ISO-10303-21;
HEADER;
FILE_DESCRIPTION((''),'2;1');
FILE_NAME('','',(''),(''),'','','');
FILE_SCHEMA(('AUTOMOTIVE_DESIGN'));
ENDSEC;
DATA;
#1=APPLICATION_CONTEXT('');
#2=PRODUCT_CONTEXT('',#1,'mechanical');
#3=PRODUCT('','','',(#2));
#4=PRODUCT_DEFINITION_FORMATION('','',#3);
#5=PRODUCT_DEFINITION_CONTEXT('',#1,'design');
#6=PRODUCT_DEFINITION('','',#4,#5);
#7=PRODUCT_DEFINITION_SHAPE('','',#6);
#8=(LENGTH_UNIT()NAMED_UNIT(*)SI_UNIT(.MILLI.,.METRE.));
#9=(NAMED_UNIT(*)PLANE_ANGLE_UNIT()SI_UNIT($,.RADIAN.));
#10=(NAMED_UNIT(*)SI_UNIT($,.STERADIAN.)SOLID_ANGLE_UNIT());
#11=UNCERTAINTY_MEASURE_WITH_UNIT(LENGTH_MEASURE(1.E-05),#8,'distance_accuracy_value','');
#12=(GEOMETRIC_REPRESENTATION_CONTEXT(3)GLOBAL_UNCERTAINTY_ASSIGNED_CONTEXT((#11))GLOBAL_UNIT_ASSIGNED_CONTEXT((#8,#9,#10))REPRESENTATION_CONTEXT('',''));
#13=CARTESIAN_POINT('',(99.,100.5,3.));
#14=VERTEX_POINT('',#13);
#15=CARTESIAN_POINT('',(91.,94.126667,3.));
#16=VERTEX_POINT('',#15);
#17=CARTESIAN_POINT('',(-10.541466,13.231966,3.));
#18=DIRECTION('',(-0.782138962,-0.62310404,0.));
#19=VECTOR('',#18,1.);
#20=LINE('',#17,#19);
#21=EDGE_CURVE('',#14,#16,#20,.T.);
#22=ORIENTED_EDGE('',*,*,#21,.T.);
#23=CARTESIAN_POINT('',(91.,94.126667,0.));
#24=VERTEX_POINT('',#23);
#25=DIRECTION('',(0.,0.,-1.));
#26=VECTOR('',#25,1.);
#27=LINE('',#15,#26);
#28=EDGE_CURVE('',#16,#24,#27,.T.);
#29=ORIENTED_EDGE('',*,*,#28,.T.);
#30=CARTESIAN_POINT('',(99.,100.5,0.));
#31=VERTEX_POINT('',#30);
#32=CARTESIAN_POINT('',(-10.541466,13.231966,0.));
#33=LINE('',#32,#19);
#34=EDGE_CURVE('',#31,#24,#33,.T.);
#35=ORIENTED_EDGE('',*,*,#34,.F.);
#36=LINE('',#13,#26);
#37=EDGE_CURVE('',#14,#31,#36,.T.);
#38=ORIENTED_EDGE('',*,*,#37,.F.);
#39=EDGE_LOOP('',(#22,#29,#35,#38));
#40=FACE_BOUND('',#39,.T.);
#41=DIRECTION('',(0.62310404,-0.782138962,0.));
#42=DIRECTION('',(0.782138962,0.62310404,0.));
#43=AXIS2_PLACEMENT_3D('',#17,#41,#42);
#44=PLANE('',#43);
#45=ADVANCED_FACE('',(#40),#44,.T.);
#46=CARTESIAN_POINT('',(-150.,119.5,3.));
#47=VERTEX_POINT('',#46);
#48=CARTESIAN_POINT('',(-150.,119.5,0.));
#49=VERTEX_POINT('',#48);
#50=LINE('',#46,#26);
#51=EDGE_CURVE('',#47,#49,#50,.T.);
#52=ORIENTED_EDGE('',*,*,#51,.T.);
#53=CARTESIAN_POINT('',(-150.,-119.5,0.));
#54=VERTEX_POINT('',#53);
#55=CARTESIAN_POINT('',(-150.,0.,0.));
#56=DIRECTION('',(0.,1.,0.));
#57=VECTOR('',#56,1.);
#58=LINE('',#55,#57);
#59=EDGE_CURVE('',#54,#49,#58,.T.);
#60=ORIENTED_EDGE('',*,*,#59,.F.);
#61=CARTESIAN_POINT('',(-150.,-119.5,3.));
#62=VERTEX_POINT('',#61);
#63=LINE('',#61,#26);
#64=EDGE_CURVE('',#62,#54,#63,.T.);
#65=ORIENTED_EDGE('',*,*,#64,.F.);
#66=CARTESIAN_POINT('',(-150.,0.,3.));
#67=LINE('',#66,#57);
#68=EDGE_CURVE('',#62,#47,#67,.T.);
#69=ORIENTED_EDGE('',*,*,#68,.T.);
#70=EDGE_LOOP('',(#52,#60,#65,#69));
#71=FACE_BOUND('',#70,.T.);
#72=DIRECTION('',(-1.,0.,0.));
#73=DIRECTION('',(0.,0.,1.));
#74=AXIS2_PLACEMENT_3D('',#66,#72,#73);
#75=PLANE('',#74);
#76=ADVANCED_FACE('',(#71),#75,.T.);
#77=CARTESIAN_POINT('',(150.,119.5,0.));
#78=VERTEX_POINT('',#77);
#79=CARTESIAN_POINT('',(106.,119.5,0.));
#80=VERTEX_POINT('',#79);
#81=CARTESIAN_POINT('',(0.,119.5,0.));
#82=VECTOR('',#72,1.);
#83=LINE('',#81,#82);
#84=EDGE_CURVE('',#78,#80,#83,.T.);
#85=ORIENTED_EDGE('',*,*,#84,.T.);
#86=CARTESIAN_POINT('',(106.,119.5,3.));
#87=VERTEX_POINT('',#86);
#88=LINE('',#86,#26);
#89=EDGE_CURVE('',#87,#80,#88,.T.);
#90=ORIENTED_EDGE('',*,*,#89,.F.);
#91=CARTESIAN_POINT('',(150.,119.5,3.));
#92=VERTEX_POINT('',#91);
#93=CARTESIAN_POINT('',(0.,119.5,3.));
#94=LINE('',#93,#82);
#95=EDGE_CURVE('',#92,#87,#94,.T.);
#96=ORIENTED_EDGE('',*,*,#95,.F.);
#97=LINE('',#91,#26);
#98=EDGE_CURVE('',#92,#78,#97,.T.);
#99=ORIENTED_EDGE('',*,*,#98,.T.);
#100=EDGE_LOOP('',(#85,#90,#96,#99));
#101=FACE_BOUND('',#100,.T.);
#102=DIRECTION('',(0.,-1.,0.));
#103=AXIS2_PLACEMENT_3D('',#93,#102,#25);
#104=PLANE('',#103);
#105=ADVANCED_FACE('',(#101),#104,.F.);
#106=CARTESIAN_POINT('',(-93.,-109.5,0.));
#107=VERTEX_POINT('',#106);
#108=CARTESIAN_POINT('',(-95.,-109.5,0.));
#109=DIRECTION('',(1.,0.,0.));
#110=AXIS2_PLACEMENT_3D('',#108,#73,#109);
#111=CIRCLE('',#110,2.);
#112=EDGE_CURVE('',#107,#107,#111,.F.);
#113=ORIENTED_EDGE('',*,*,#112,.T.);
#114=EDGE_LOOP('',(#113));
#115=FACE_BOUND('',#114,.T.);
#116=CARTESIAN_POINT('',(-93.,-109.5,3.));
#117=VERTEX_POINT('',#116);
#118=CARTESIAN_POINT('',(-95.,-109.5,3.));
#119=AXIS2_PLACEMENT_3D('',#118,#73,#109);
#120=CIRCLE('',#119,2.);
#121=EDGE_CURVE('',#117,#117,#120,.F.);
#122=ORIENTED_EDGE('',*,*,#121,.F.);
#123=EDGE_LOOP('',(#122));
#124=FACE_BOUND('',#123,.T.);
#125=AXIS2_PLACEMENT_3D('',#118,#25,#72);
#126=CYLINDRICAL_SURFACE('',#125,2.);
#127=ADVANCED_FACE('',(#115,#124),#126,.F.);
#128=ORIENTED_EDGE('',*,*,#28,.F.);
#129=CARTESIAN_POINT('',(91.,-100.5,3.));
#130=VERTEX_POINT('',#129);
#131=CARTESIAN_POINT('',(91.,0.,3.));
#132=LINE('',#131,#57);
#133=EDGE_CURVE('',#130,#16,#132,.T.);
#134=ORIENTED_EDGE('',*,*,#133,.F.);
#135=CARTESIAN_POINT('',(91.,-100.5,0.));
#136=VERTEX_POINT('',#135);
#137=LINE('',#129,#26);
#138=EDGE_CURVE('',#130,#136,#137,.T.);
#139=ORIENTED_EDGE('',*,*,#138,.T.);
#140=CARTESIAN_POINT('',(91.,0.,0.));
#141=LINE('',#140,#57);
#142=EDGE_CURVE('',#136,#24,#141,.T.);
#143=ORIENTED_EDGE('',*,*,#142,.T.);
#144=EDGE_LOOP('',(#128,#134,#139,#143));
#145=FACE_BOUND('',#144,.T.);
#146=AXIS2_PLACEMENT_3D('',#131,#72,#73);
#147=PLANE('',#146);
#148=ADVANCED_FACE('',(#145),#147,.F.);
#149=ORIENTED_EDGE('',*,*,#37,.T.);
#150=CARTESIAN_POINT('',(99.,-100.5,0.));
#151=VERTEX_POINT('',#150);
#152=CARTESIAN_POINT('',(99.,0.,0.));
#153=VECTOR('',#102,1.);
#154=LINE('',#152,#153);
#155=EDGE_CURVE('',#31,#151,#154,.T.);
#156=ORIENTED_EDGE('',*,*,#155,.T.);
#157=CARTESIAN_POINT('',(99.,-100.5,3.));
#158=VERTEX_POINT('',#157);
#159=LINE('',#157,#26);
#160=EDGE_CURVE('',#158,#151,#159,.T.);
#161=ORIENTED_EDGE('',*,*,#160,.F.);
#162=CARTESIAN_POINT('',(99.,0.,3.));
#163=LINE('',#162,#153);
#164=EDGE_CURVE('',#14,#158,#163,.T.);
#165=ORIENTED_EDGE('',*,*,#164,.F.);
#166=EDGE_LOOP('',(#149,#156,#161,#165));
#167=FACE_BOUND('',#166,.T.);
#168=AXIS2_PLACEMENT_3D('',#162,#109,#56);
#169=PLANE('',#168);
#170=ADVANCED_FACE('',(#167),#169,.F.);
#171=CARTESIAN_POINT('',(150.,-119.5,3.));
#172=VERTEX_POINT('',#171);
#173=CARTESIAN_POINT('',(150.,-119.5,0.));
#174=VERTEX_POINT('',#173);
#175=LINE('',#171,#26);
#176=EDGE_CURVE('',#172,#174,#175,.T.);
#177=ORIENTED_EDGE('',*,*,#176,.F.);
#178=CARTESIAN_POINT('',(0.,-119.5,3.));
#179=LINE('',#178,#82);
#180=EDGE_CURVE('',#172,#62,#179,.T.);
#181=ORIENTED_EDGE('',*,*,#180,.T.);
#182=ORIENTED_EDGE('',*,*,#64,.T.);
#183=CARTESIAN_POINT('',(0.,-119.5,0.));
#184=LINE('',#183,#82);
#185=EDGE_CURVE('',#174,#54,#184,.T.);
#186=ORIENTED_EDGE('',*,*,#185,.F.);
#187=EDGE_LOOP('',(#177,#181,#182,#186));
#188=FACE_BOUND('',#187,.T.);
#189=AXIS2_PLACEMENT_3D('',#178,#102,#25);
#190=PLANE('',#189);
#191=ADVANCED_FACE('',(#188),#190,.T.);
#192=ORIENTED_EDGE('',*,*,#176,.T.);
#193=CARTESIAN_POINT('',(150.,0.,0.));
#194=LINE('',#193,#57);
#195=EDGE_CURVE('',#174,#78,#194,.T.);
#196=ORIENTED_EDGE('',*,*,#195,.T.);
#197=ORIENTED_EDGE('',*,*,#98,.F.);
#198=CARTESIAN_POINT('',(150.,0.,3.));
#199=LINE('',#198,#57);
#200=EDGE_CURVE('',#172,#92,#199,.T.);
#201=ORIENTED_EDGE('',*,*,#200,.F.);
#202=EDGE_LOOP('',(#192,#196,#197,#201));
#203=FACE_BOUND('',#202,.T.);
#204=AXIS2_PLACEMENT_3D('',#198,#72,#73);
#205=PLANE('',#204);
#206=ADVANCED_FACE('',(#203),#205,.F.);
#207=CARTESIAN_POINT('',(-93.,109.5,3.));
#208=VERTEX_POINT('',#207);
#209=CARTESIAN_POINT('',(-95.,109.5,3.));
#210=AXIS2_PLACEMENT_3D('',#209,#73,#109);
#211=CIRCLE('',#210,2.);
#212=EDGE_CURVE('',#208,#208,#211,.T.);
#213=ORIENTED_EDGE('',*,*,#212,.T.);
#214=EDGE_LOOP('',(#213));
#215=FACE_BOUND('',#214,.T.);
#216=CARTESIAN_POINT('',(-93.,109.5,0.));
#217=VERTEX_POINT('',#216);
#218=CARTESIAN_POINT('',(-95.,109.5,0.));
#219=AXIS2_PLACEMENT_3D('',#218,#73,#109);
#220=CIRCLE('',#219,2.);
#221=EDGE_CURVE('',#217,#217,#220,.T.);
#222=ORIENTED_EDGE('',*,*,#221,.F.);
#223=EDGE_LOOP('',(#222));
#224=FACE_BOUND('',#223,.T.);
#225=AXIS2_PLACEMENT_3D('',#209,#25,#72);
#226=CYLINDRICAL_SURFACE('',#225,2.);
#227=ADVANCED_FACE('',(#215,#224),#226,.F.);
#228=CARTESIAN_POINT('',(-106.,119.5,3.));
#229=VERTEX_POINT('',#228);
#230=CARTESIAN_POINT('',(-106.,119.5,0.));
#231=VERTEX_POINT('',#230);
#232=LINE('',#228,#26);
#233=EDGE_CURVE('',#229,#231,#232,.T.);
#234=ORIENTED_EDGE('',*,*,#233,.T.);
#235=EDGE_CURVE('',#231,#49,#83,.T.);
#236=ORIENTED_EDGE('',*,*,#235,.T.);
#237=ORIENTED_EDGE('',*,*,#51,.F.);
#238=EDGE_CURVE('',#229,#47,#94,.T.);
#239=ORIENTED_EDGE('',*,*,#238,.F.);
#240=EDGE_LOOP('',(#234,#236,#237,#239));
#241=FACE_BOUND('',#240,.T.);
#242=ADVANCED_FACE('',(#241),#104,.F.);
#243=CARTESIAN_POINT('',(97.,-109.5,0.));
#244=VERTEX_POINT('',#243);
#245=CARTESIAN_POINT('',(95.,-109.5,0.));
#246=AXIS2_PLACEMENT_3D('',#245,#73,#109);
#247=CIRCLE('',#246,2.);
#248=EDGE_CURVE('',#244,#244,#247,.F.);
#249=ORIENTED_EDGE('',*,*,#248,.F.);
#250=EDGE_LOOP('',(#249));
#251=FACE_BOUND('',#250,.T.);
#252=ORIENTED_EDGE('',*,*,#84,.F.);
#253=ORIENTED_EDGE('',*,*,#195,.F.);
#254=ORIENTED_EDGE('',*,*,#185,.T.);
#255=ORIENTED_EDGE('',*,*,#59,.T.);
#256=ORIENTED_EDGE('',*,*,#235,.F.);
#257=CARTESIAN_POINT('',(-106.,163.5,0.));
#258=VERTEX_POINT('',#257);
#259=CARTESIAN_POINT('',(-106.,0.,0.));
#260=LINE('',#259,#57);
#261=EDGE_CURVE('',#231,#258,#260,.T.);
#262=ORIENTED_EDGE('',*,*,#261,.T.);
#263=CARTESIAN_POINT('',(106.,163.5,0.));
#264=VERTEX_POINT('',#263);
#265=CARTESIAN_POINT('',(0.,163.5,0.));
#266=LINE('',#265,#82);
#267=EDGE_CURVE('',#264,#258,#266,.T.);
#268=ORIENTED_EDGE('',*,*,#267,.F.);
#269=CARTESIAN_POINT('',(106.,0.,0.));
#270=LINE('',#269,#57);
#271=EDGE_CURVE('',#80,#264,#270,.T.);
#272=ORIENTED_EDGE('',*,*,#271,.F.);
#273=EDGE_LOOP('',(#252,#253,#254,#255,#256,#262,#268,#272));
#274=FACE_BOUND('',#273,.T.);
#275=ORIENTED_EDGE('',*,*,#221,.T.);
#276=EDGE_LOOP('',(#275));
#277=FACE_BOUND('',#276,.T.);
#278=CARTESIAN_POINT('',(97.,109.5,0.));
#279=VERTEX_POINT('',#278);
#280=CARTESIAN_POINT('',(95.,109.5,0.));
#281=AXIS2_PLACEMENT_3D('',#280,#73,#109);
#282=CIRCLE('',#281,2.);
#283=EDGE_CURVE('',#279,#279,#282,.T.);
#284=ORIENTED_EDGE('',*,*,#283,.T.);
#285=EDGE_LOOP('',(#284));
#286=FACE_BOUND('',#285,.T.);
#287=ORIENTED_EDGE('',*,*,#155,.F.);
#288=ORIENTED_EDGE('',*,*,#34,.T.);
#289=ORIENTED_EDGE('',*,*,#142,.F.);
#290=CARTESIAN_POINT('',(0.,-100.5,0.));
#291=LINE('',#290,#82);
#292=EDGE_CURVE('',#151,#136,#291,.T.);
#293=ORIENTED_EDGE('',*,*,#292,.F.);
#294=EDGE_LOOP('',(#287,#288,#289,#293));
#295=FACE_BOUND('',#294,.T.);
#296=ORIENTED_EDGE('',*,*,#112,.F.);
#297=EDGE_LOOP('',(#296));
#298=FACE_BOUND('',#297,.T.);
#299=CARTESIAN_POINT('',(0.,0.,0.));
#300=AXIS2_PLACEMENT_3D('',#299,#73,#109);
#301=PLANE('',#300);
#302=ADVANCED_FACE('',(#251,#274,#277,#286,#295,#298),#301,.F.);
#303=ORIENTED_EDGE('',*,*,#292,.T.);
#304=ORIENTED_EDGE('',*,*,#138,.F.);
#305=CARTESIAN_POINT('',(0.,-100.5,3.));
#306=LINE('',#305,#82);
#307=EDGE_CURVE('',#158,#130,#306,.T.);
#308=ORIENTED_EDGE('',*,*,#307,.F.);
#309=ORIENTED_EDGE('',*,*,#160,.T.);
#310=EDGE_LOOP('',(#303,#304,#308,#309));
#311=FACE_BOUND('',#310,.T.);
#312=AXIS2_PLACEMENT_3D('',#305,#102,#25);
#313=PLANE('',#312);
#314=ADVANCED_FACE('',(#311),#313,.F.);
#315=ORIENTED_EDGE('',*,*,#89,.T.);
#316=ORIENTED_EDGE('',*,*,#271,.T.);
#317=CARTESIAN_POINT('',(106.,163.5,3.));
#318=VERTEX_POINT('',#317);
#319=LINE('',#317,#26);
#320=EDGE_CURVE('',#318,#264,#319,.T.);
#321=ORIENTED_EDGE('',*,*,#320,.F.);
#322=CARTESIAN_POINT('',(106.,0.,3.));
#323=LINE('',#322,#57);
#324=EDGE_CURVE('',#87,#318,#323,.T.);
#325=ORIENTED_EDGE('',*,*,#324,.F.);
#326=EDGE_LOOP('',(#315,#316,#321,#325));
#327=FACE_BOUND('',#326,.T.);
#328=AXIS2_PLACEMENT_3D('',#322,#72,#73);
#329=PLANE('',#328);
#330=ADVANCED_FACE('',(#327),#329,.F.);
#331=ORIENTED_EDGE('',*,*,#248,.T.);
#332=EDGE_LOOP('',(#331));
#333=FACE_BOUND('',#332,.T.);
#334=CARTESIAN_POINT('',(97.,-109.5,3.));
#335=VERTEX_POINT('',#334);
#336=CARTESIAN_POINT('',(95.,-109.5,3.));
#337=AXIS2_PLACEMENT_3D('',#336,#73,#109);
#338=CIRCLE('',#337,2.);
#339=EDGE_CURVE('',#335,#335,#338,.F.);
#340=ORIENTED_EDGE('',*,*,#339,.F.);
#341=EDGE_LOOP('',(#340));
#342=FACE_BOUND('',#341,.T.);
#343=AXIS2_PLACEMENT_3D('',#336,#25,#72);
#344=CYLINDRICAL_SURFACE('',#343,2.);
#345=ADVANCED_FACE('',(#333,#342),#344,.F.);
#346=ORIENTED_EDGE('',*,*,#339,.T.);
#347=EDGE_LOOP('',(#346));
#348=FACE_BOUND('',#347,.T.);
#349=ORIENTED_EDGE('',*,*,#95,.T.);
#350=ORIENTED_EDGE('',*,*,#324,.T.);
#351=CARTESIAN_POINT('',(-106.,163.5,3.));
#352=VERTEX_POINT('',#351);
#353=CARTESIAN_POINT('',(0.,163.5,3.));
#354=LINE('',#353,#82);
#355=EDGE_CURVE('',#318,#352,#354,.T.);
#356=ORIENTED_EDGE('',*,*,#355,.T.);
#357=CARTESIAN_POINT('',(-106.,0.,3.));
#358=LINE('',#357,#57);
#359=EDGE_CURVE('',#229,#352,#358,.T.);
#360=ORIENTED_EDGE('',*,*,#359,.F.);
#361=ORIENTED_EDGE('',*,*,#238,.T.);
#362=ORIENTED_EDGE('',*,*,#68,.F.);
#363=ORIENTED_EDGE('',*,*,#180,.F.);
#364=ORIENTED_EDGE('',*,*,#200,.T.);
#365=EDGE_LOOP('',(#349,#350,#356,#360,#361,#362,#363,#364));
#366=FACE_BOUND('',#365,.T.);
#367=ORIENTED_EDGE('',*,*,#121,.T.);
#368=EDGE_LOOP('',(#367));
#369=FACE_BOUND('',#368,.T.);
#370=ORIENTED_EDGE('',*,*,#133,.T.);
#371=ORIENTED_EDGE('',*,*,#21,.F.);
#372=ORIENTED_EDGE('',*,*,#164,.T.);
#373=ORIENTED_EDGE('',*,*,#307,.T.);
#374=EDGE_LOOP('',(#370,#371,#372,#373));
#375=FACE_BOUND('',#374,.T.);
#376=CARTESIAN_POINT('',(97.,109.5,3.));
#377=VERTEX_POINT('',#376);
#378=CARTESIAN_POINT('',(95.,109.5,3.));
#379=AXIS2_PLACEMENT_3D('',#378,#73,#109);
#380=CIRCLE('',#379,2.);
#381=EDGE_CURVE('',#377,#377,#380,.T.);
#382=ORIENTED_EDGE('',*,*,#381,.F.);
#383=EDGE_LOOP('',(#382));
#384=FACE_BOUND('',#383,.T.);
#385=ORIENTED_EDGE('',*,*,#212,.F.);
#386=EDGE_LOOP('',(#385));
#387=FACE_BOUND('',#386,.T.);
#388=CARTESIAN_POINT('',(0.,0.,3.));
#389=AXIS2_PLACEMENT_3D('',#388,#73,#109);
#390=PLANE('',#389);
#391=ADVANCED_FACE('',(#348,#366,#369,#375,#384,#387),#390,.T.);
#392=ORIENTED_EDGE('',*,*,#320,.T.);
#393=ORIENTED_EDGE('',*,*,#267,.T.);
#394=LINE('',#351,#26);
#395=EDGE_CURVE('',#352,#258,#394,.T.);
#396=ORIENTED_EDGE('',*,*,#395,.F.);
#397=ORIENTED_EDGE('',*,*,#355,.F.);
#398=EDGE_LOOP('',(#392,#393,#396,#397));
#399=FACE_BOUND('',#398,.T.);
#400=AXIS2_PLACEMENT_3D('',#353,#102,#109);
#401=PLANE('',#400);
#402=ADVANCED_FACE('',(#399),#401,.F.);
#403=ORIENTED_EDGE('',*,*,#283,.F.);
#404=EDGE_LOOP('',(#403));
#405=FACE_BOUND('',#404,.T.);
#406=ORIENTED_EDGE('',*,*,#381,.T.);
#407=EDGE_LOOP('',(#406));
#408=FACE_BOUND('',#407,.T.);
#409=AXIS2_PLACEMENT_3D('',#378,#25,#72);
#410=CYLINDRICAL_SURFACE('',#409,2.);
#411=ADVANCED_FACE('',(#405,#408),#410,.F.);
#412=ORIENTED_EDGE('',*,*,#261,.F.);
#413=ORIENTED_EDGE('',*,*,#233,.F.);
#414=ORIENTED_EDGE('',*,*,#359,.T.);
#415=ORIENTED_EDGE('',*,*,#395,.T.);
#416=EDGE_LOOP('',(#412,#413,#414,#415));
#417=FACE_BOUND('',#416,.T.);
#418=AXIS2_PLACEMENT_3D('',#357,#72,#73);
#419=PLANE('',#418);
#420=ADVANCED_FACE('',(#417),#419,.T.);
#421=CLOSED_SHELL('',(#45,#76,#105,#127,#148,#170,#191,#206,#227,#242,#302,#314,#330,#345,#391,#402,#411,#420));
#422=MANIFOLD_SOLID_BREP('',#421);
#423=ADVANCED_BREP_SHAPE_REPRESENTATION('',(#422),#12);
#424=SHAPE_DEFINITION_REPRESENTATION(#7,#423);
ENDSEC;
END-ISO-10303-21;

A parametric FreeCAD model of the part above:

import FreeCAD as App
import Part
import Sketcher

V = App.Vector

doc = App.newDocument("Part")
body = doc.addObject("PartDesign::Body", "Body")

# Sketch on XY plane
sketch1 = doc.addObject("Sketcher::SketchObject", "Sketch")
body.addObject(sketch1)
sketch1.AttachmentSupport = (doc.XY_Plane, [""])
sketch1.MapMode = "FlatFace"
sketch1.addGeometry(Part.LineSegment(V(-150, -119.5, 0), V(150, -119.5, 0)), False)
sketch1.addGeometry(Part.LineSegment(V(150, -119.5, 0), V(150, 119.5, 0)), False)
sketch1.addGeometry(Part.LineSegment(V(150, 119.5, 0), V(106, 119.5, 0)), False)
sketch1.addGeometry(Part.LineSegment(V(106, 119.5, 0), V(106, 163.5, 0)), False)
sketch1.addGeometry(Part.LineSegment(V(106, 163.5, 0), V(-106, 163.5, 0)), False)
sketch1.addGeometry(Part.LineSegment(V(-106, 163.5, 0), V(-106, 119.5, 0)), False)
sketch1.addGeometry(Part.LineSegment(V(-106, 119.5, 0), V(-150, 119.5, 0)), False)
sketch1.addGeometry(Part.LineSegment(V(-150, 119.5, 0), V(-150, -119.5, 0)), False)
sketch1.addGeometry(Part.Circle(V(-95, -109.5, 0), V(0, 0, 1), 2), False)
sketch1.addGeometry(Part.Circle(V(95, -109.5, 0), V(0, 0, 1), 2), False)
sketch1.addGeometry(Part.Circle(V(-95, 109.5, 0), V(0, 0, 1), 2), False)
sketch1.addGeometry(Part.LineSegment(V(91, -100.5, 0), V(91, 94.126667, 0)), False)
sketch1.addGeometry(Part.LineSegment(V(91, 94.126667, 0), V(99, 100.5, 0)), False)
sketch1.addGeometry(Part.LineSegment(V(99, 100.5, 0), V(99, -100.5, 0)), False)
sketch1.addGeometry(Part.LineSegment(V(99, -100.5, 0), V(91, -100.5, 0)), False)
sketch1.addGeometry(Part.Circle(V(95, 109.5, 0), V(0, 0, 1), 2), False)
sketch1.addConstraint(Sketcher.Constraint("Coincident", 0, 2, 1, 1))
sketch1.addConstraint(Sketcher.Constraint("Coincident", 1, 2, 2, 1))
sketch1.addConstraint(Sketcher.Constraint("Coincident", 2, 2, 3, 1))
sketch1.addConstraint(Sketcher.Constraint("Coincident", 3, 2, 4, 1))
sketch1.addConstraint(Sketcher.Constraint("Coincident", 4, 2, 5, 1))
sketch1.addConstraint(Sketcher.Constraint("Coincident", 5, 2, 6, 1))
sketch1.addConstraint(Sketcher.Constraint("Coincident", 6, 2, 7, 1))
sketch1.addConstraint(Sketcher.Constraint("Coincident", 7, 2, 0, 1))
sketch1.addConstraint(Sketcher.Constraint("Coincident", 11, 2, 12, 1))
sketch1.addConstraint(Sketcher.Constraint("Coincident", 12, 2, 13, 1))
sketch1.addConstraint(Sketcher.Constraint("Coincident", 13, 2, 14, 1))
sketch1.addConstraint(Sketcher.Constraint("Coincident", 14, 2, 11, 1))
sketch1.addConstraint(Sketcher.Constraint("Horizontal", 0))
sketch1.addConstraint(Sketcher.Constraint("Vertical", 1))
sketch1.addConstraint(Sketcher.Constraint("Horizontal", 2))
sketch1.addConstraint(Sketcher.Constraint("Vertical", 3))
sketch1.addConstraint(Sketcher.Constraint("Horizontal", 4))
sketch1.addConstraint(Sketcher.Constraint("Vertical", 5))
sketch1.addConstraint(Sketcher.Constraint("Horizontal", 6))
sketch1.addConstraint(Sketcher.Constraint("Vertical", 7))
sketch1.addConstraint(Sketcher.Constraint("Vertical", 11))
sketch1.addConstraint(Sketcher.Constraint("Vertical", 13))
sketch1.addConstraint(Sketcher.Constraint("Horizontal", 14))
sketch1.addConstraint(Sketcher.Constraint("Equal", 8, 9))
sketch1.addConstraint(Sketcher.Constraint("Equal", 9, 10))
sketch1.addConstraint(Sketcher.Constraint("Equal", 10, 15))
sketch1.addConstraint(Sketcher.Constraint("Symmetric", 9, 3, 10, 3, -1, 1))
sketch1.addConstraint(Sketcher.Constraint("Symmetric", 8, 3, 15, 3, -1, 1))
sketch1.addConstraint(Sketcher.Constraint("Symmetric", 0, 2, 6, 2, -1, 1))
sketch1.addConstraint(Sketcher.Constraint("Symmetric", 8, 3, 9, 3, -2))
sketch1.addConstraint(Sketcher.Constraint("Symmetric", 2, 2, 5, 2, -2))
sketch1.addConstraint(Sketcher.Constraint("Equal", 6, 3))
sketch1.addConstraint(Sketcher.Constraint("Diameter", 8, 4.0))
sketch1.addConstraint(Sketcher.Constraint("DistanceX", 0, 1, 0, 2, 300.0))
sketch1.addConstraint(Sketcher.Constraint("DistanceX", 2, 2, 2, 1, 44.0))
sketch1.addConstraint(Sketcher.Constraint("DistanceX", 14, 2, 14, 1, 8.0))
sketch1.addConstraint(Sketcher.Constraint("DistanceY", 1, 1, 1, 2, 239.0))
sketch1.addConstraint(Sketcher.Constraint("DistanceY", 13, 2, 13, 1, 201.0))
sketch1.addConstraint(Sketcher.Constraint("DistanceX", 8, 3, -1, 1, 95.0))
sketch1.addConstraint(Sketcher.Constraint("DistanceX", -1, 1, 11, 2, 91.0))
sketch1.addConstraint(Sketcher.Constraint("DistanceY", 8, 3, 10, 3, 219.0))
sketch1.addConstraint(Sketcher.Constraint("DistanceY", 12, 2, 15, 3, 9.0))
sketch1.addConstraint(Sketcher.Constraint("Distance", 12, 10.228361))
pad1 = doc.addObject("PartDesign::Pad", "Pad")
body.addObject(pad1)
pad1.Profile = sketch1
pad1.Length = 3

doc.recompute()
